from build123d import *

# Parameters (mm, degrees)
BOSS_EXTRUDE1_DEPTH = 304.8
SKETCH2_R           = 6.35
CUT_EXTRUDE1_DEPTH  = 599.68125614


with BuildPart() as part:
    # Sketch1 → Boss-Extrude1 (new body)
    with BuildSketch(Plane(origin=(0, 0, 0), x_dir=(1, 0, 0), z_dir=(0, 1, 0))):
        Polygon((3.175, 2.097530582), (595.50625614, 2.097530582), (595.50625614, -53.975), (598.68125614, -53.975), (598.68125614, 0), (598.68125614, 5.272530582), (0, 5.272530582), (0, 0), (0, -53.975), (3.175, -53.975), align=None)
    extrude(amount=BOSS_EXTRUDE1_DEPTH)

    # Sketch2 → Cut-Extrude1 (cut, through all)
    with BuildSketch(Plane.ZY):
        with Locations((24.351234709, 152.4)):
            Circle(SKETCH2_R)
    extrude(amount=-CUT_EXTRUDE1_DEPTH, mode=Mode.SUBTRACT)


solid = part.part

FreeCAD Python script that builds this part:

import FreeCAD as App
import Part
import Sketcher

V = App.Vector
Q = App.Units.Quantity


def add_polygon(sketch, points):
    """Adds a closed chain of lines whose ends are joined by coincident constraints."""
    first, n = sketch.GeometryCount, len(points)
    for a, b in zip(points, points[1:] + points[:1]):
        sketch.addGeometry(Part.LineSegment(App.Vector(*a, 0), App.Vector(*b, 0)), False)
    for i in range(n):
        sketch.addConstraint(Sketcher.Constraint("Coincident", first + i, 2, first + (i + 1) % n, 1))

doc = App.newDocument("Part")
body = doc.addObject("PartDesign::Body", "Body")

# Sketch on XZ plane
sketch1 = body.newObject("Sketcher::SketchObject", "Sketch")
sketch1.AttachmentSupport = (doc.getObject("XZ_Plane"), [""])
sketch1.MapMode = "FlatFace"
add_polygon(sketch1, [(3.175, -2.097531), (595.506256, -2.097531), (595.506256, 53.975), (598.681256, 53.975), (598.681256, -5.272531), (0, -5.272531), (0, 53.975), (3.175, 53.975)])  # lines 0-7
sketch1.addConstraint([
    Sketcher.Constraint("Horizontal", 0),
    Sketcher.Constraint("Vertical", 1),
    Sketcher.Constraint("Horizontal", 2),
    Sketcher.Constraint("Vertical", 3),
    Sketcher.Constraint("Horizontal", 4),
    Sketcher.Constraint("Vertical", 5),
    Sketcher.Constraint("Horizontal", 6),
    Sketcher.Constraint("Vertical", 7),
    Sketcher.Constraint("PointOnObject", 4, 2, -2),
    Sketcher.Constraint("Horizontal", 2, 2, 5, 2),
    Sketcher.Constraint("Equal", 2, 6),
    Sketcher.Constraint("DistanceX", 2, 1, 2, 2, Q("0.125 in")),
    Sketcher.Constraint("DistanceY", -1, 1, 1, 2, Q("2.125 in")),
    Sketcher.Constraint("DistanceY", 3, 2, 0, 2, Q("0.125 in")),
    Sketcher.Constraint("DistanceY", 1, 1, 1, 2, 56.072531),
    Sketcher.Constraint("DistanceX", 0, 1, 0, 2, 592.331256),
])
pad1 = body.newObject("PartDesign::Pad", "Pad")
pad1.Profile = sketch1
pad1.Length = Q("12 in")
pad1.Reversed = True

# Sketch on YZ plane
sketch2 = body.newObject("Sketcher::SketchObject", "Sketch001")
sketch2.AttachmentSupport = (doc.getObject("YZ_Plane"), [""])
sketch2.MapMode = "FlatFace"
sketch2.addGeometry(Part.Circle(V(152.4, 24.351235, 0), V(0, 0, 1), 6.35), False)
sketch2.addConstraint([
    Sketcher.Constraint("Diameter", 0, Q("0.5 in")),
    Sketcher.Constraint("DistanceX", -1, 1, 0, 3, Q("6 in")),
    Sketcher.Constraint("DistanceY", -1, 1, 0, 3, 24.351235),
])
pocket1 = body.newObject("PartDesign::Pocket", "Pocket")
pocket1.Profile = sketch2
pocket1.Type = "ThroughAll"
pocket1.Reversed = True

doc.recompute()
